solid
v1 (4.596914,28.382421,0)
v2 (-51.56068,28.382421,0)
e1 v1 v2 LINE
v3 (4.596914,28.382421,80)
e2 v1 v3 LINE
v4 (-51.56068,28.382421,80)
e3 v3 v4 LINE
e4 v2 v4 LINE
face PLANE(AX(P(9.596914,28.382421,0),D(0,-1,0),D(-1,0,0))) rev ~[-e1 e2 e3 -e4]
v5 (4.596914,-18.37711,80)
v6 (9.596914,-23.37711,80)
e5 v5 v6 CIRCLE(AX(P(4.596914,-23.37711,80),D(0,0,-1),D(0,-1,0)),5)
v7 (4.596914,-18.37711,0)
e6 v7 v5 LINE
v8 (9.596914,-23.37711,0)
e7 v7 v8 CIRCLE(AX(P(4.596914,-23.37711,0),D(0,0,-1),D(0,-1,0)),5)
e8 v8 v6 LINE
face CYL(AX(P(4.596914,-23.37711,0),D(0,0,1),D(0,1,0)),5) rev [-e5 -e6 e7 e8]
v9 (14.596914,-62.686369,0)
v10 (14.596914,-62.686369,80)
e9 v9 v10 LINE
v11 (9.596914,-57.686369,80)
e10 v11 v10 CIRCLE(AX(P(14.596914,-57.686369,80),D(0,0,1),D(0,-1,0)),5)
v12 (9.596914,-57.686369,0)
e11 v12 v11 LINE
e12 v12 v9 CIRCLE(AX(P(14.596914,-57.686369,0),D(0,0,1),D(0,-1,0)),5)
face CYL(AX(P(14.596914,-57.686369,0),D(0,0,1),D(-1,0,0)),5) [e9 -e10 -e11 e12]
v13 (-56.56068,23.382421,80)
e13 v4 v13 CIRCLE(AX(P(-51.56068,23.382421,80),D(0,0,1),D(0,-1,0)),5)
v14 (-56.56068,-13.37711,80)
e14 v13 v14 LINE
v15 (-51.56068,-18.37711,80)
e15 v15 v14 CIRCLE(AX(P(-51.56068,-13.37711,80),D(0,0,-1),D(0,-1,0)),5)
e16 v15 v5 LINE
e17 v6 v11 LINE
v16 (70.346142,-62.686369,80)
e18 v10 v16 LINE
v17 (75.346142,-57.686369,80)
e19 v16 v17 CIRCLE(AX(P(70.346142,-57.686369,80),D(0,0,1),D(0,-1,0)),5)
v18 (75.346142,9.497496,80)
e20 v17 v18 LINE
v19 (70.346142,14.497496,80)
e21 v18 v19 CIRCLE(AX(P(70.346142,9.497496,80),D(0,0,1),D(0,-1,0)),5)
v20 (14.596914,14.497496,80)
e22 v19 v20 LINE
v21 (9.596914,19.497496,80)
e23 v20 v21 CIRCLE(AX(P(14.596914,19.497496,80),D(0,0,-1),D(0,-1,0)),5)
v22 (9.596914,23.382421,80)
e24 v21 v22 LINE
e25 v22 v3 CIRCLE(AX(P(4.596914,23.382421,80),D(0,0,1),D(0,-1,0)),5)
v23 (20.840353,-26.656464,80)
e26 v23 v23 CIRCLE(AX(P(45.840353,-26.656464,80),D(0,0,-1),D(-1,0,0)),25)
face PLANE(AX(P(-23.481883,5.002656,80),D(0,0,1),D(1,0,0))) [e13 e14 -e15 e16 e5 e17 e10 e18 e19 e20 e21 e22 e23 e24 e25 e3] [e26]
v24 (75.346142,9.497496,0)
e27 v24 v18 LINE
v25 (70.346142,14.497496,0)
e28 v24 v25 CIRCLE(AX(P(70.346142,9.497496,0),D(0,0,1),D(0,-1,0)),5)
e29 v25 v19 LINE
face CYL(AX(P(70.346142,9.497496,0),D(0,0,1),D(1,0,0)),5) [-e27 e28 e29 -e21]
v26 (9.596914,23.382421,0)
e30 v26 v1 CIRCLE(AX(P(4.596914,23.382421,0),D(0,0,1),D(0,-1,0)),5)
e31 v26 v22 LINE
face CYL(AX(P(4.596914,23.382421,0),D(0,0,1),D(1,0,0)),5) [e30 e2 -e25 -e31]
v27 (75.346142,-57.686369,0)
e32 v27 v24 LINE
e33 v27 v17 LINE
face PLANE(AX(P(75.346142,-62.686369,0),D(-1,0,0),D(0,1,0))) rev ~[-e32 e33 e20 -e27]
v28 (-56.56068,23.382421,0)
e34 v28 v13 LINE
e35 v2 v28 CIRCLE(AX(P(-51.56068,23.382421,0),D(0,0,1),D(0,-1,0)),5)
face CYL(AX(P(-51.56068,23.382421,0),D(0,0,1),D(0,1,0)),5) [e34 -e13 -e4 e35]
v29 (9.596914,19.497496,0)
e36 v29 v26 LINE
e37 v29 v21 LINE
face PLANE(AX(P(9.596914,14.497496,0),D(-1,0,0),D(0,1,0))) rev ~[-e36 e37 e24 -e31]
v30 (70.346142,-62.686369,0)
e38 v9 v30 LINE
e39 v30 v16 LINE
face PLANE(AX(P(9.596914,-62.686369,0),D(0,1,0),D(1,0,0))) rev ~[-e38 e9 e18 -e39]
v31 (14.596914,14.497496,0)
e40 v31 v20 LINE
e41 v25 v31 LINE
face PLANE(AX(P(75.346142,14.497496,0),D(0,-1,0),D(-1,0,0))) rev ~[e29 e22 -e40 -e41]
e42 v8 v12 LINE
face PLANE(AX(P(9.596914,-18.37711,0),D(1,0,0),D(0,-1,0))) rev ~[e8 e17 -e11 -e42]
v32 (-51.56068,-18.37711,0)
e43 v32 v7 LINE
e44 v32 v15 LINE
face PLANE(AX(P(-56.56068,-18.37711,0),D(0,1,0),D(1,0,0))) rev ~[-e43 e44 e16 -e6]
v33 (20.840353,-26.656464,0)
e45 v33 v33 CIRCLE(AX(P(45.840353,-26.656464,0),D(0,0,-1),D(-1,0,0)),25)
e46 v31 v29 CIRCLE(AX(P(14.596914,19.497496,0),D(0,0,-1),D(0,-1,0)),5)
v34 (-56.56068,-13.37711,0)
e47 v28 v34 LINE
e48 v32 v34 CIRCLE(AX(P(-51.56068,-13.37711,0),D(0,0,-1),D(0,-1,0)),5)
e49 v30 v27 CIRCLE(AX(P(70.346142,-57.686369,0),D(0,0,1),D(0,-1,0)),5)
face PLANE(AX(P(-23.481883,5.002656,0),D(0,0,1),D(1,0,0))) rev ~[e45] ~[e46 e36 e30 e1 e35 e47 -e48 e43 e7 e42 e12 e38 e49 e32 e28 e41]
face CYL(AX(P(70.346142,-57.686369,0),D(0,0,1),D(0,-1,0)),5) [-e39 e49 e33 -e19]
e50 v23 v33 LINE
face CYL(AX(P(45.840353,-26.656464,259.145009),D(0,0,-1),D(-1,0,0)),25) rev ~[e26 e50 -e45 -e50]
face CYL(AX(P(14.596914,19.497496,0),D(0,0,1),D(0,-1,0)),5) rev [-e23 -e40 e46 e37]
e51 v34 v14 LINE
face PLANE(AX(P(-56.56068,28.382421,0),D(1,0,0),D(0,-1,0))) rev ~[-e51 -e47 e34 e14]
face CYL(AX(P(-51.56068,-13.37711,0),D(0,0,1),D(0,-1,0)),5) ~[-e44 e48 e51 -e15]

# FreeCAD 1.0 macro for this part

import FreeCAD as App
import Part
import Sketcher
Q = App.Units.Quantity


def edges_at(feature, points):
    """Names of the edges that pass closest to the given points."""
    edges = feature.Shape.Edges
    near = lambda p: min(range(len(edges)), key=lambda i: edges[i].distToShape(Part.Vertex(*p))[0])
    return sorted({f"Edge{near(p) + 1}" for p in points})

doc = App.newDocument("Part")
params = doc.addObject("Spreadsheet::Sheet", "Params")
for row, (alias, value) in enumerate([
    ("pad1_length", "80 mm"),
    ("fillet_radius", "5 mm"),
    ("sketch2_diameter", "50 mm"),
    ("hole_diameter", "50 mm"),
], start=1):
    params.set(f"A{row}", alias)
    params.set(f"B{row}", "=" + value)
    params.setAlias(f"B{row}", alias)

body = doc.addObject("PartDesign::Body", "Body")

# Sketch on XY plane
sketch1 = doc.addObject("Sketcher::SketchObject", "Sketch")
body.addObject(sketch1)
sketch1.AttachmentSupport = (doc.XY_Plane, [""])
sketch1.MapMode = "FlatFace"
sketch1.addGeometry(Part.LineSegment(App.Vector(-56.56068, -18.37711, 0), App.Vector(9.596914, -18.37711, 0)), False)
sketch1.addGeometry(Part.LineSegment(App.Vector(9.596914, -18.37711, 0), App.Vector(9.596914, -62.686369, 0)), False)
sketch1.addGeometry(Part.LineSegment(App.Vector(9.596914, -62.686369, 0), App.Vector(75.346142, -62.686369, 0)), False)
sketch1.addGeometry(Part.LineSegment(App.Vector(75.346142, -62.686369, 0), App.Vector(75.346142, 14.497496, 0)), False)
sketch1.addGeometry(Part.LineSegment(App.Vector(75.346142, 14.497496, 0), App.Vector(9.596914, 14.497496, 0)), False)
sketch1.addGeometry(Part.LineSegment(App.Vector(9.596914, 14.497496, 0), App.Vector(9.596914, 28.382421, 0)), False)
sketch1.addGeometry(Part.LineSegment(App.Vector(9.596914, 28.382421, 0), App.Vector(-56.56068, 28.382421, 0)), False)
sketch1.addGeometry(Part.LineSegment(App.Vector(-56.56068, 28.382421, 0), App.Vector(-56.56068, -18.37711, 0)), False)
sketch1.addConstraint(Sketcher.Constraint("Coincident", 0, 2, 1, 1))
sketch1.addConstraint(Sketcher.Constraint("Coincident", 1, 2, 2, 1))
sketch1.addConstraint(Sketcher.Constraint("Coincident", 2, 2, 3, 1))
sketch1.addConstraint(Sketcher.Constraint("Coincident", 3, 2, 4, 1))
sketch1.addConstraint(Sketcher.Constraint("Coincident", 4, 2, 5, 1))
sketch1.addConstraint(Sketcher.Constraint("Coincident", 5, 2, 6, 1))
sketch1.addConstraint(Sketcher.Constraint("Coincident", 6, 2, 7, 1))
sketch1.addConstraint(Sketcher.Constraint("Coincident", 7, 2, 0, 1))
sketch1.addConstraint(Sketcher.Constraint("Horizontal", 0))
sketch1.addConstraint(Sketcher.Constraint("Vertical", 1))
sketch1.addConstraint(Sketcher.Constraint("Horizontal", 2))
sketch1.addConstraint(Sketcher.Constraint("Vertical", 3))
sketch1.addConstraint(Sketcher.Constraint("Horizontal", 4))
sketch1.addConstraint(Sketcher.Constraint("Vertical", 5))
sketch1.addConstraint(Sketcher.Constraint("Horizontal", 6))
sketch1.addConstraint(Sketcher.Constraint("Vertical", 7))
sketch1.addConstraint(Sketcher.Constraint("Vertical", 1, 2, 4, 2))
sketch1.addConstraint(Sketcher.Constraint("DistanceX", 2, 1, 2, 2, Q("65.749228 mm")))
sketch1.addConstraint(Sketcher.Constraint("DistanceY", 1, 2, 1, 1, Q("44.309259 mm")))
sketch1.addConstraint(Sketcher.Constraint("DistanceY", 7, 2, 7, 1, Q("46.759531 mm")))
sketch1.addConstraint(Sketcher.Constraint("DistanceX", 0, 1, 0, 2, Q("66.157594 mm")))
sketch1.addConstraint(Sketcher.Constraint("DistanceY", 3, 1, 3, 2, Q("77.183865 mm")))
sketch1.addConstraint(Sketcher.Constraint("DistanceY", 0, 2, -1, 1, Q("18.37711 mm")))
sketch1.addConstraint(Sketcher.Constraint("DistanceX", -1, 1, 2, 2, Q("75.346142 mm")))
pad1 = doc.addObject("PartDesign::Pad", "Pad")
body.addObject(pad1)
pad1.Profile = sketch1
pad1.setExpression("Length", "Params.pad1_length")
doc.recompute()

fillet = doc.addObject("PartDesign::Fillet", "Fillet")
body.addObject(fillet)
fillet.Base = (pad1, edges_at(pad1, [
    (9.597, 14.497, 40),
    (9.597, -18.377, 40),
    (-56.561, -18.377, 40),
    (-56.561, 28.382, 40),
    (9.597, 28.382, 40),
    (75.346, 14.497, 40),
    (75.346, -62.686, 40),
    (9.597, -62.686, 40),
]))
fillet.setExpression("Radius", "Params.fillet_radius")

# Sketch on XY plane
sketch2 = doc.addObject("Sketcher::SketchObject", "Sketch001")
body.addObject(sketch2)
sketch2.AttachmentSupport = (doc.XY_Plane, [""])
sketch2.MapMode = "FlatFace"
sketch2.AttachmentOffset = App.Placement(App.Vector(0, 0, 80), App.Rotation())
sketch2.addGeometry(Part.Circle(App.Vector(45.840353, -26.656464, 0), App.Vector(0, 0, 1), 25), False)
sketch2.addConstraint(Sketcher.Constraint("Diameter", 0, Q("50 mm")))
sketch2.addConstraint(Sketcher.Constraint("DistanceX", -1, 1, 0, 3, Q("45.840353 mm")))
sketch2.addConstraint(Sketcher.Constraint("DistanceY", 0, 3, -1, 1, Q("26.656464 mm")))
sketch2.setExpression("Constraints[0]", "Params.sketch2_diameter")
doc.recompute()
hole = doc.addObject("PartDesign::Hole", "Hole")
body.addObject(hole)
hole.Profile = sketch2
hole.ThreadType = "None"
hole.setExpression("Diameter", "Params.hole_diameter")
hole.DepthType = "ThroughAll"

doc.recompute()
